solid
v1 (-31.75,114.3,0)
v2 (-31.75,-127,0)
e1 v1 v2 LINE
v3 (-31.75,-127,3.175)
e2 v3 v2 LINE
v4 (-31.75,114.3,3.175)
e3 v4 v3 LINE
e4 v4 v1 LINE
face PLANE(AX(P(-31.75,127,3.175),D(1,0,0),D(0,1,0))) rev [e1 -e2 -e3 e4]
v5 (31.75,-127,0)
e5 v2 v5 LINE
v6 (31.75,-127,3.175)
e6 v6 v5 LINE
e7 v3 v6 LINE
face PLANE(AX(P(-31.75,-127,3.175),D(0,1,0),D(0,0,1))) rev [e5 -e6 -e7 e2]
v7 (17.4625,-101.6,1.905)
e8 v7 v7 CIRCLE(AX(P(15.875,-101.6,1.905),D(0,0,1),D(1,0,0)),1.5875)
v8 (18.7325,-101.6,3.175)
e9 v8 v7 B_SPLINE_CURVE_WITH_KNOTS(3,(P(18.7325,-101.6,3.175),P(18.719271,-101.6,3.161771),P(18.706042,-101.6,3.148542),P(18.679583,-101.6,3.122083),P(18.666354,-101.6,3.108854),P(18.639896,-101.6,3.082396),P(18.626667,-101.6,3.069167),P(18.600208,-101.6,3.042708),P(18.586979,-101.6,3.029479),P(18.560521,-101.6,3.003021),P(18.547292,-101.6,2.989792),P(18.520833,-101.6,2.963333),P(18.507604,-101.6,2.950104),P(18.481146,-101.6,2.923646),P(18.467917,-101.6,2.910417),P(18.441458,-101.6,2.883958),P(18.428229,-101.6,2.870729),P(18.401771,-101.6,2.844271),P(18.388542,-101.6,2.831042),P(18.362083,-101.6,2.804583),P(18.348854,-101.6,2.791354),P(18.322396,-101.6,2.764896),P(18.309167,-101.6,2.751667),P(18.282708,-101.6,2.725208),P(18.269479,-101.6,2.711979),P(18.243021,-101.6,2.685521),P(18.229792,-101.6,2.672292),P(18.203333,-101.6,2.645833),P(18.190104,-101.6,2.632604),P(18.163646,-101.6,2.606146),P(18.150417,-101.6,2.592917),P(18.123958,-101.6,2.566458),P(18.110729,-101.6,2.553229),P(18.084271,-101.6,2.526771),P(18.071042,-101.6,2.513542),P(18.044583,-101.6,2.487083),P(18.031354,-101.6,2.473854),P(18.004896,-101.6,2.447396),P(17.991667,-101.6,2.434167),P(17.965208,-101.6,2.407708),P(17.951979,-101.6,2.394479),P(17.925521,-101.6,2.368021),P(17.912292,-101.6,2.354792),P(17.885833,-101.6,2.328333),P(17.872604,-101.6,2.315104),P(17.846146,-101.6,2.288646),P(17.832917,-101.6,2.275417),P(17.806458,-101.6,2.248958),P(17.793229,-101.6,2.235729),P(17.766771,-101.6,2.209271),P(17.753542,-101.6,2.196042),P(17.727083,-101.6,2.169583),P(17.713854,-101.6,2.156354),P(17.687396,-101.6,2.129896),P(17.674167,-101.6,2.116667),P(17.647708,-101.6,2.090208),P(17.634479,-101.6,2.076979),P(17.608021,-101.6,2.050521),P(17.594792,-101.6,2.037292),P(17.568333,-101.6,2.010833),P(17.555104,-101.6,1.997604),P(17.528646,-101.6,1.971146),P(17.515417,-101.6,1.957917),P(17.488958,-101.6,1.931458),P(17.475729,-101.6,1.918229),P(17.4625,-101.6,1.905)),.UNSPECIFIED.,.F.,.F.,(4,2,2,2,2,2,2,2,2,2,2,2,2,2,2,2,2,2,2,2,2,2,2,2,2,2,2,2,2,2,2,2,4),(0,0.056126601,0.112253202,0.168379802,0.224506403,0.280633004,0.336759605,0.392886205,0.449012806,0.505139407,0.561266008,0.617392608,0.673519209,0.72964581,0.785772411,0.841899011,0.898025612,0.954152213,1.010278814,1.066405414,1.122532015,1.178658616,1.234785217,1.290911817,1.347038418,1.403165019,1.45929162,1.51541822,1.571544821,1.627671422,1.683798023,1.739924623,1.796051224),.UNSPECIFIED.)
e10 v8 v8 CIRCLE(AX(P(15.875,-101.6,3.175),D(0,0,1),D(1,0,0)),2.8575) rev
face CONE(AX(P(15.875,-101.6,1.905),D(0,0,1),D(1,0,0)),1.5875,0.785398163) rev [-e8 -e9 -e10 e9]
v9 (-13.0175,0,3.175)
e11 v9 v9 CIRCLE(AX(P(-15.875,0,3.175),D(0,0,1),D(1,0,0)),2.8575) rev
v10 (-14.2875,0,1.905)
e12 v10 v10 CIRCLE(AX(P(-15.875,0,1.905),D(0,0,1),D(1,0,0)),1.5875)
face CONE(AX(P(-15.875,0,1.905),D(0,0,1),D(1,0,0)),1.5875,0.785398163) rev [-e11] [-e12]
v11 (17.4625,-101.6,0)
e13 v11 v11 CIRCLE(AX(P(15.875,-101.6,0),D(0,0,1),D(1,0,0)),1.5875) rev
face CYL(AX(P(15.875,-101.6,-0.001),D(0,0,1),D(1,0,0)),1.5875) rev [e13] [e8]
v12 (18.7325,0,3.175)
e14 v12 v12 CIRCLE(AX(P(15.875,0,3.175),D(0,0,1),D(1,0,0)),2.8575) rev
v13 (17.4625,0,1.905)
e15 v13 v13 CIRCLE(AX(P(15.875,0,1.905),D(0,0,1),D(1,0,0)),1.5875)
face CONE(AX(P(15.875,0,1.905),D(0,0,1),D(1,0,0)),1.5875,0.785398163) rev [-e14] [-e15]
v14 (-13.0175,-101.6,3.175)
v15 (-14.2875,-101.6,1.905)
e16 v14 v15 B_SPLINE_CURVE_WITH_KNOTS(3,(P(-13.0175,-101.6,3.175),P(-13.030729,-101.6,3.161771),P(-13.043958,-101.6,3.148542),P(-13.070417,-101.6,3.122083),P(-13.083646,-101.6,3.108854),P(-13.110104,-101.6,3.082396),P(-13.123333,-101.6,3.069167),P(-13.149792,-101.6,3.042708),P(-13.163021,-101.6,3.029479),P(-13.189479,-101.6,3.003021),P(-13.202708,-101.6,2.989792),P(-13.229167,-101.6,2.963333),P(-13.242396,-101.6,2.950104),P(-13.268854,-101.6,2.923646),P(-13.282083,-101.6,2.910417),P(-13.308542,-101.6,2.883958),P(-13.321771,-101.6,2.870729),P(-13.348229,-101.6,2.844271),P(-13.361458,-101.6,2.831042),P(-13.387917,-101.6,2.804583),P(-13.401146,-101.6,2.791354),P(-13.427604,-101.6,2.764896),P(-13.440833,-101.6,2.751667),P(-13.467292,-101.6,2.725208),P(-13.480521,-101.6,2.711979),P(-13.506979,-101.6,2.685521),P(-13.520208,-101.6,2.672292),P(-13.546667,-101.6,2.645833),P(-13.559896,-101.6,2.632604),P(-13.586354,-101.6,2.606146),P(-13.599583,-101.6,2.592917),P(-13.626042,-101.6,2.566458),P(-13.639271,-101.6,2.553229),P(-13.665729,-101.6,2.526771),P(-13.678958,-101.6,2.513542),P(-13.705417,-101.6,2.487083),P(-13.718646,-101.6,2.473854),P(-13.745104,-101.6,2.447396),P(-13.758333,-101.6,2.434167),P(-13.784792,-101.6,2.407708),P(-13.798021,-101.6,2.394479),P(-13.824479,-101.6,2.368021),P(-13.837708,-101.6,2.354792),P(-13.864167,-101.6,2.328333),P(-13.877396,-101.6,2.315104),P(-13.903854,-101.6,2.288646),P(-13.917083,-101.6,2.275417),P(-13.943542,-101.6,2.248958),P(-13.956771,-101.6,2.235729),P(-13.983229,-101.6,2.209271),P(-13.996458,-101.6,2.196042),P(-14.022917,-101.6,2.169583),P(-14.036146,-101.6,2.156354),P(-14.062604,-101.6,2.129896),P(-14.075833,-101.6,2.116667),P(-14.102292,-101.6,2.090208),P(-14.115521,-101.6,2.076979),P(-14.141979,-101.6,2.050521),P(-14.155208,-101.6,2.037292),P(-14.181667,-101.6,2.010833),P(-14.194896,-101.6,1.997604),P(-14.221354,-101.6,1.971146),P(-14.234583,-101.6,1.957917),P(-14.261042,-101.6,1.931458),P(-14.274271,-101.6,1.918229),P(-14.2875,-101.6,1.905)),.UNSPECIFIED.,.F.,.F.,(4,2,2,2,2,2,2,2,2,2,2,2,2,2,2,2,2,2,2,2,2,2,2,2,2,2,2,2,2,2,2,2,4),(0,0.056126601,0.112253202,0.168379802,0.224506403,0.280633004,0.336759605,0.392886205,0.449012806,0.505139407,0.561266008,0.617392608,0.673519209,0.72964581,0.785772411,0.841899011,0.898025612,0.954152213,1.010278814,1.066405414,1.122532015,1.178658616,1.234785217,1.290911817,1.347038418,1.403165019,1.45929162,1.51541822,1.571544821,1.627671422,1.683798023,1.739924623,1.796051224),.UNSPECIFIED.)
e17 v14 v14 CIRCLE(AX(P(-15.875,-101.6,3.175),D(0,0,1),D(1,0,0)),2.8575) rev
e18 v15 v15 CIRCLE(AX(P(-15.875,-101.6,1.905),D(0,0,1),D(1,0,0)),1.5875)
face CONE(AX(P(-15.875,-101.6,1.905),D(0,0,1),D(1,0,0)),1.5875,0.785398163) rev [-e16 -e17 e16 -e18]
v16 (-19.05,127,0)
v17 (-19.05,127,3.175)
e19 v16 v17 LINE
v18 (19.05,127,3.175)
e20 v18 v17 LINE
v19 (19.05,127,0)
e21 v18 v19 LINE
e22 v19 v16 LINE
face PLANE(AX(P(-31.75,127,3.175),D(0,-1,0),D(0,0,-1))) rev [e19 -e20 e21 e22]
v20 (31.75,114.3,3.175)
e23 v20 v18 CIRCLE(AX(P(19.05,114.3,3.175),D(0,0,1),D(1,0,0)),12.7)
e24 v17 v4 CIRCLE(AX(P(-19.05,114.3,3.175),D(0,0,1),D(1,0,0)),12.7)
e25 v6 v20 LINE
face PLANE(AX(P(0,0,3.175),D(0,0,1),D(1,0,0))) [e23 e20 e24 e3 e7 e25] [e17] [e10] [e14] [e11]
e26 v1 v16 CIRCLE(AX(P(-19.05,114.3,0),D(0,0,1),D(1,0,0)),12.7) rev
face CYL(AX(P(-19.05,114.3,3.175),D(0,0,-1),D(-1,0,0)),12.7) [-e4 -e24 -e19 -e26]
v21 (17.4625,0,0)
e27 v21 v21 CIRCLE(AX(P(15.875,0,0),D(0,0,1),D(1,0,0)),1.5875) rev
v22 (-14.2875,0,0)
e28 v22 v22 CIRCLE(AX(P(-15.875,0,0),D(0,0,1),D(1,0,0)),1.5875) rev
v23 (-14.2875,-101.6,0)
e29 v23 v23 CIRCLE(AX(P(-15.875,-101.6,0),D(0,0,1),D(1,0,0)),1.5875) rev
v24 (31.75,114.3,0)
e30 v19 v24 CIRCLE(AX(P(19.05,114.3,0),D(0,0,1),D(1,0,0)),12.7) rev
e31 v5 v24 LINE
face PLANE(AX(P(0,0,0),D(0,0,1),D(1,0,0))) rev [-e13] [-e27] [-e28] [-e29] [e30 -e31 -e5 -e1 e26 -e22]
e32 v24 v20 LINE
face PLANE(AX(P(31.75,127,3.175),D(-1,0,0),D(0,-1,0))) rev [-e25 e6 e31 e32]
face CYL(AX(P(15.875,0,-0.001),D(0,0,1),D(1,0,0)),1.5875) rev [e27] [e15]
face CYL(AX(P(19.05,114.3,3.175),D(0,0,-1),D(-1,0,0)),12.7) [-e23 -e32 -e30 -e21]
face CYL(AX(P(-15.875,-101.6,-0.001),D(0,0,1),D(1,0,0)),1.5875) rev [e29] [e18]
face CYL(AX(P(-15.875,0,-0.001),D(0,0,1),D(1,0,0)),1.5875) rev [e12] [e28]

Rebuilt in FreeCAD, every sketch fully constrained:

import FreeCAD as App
import Part
import Sketcher

V = App.Vector
Q = App.Units.Quantity


def edges_at(feature, points):
    """Names of the edges that pass closest to the given points."""
    edges = feature.Shape.Edges
    near = lambda p: min(range(len(edges)), key=lambda i: edges[i].distToShape(Part.Vertex(*p))[0])
    return sorted({f"Edge{near(p) + 1}" for p in points})


def add_polygon(sketch, points):
    """Adds a closed chain of lines whose ends are joined by coincident constraints."""
    first, n = sketch.GeometryCount, len(points)
    for a, b in zip(points, points[1:] + points[:1]):
        sketch.addGeometry(Part.LineSegment(App.Vector(*a, 0), App.Vector(*b, 0)), False)
    for i in range(n):
        sketch.addConstraint(Sketcher.Constraint("Coincident", first + i, 2, first + (i + 1) % n, 1))

doc = App.newDocument("Part")
body = doc.addObject("PartDesign::Body", "Body")

sketch1 = body.newObject("Sketcher::SketchObject", "Sketch")
sketch1.AttachmentSupport = (doc.getObject("XY_Plane"), [""])
sketch1.MapMode = "FlatFace"
add_polygon(sketch1, [(-32, 127), (-32, -127), (32, -127), (32, 127)])
sketch1.addConstraint(Sketcher.Constraint("Vertical", 0))
sketch1.addConstraint(Sketcher.Constraint("Horizontal", 1))
sketch1.addConstraint(Sketcher.Constraint("Vertical", 2))
sketch1.addConstraint(Sketcher.Constraint("Horizontal", 3))
sketch1.addConstraint(Sketcher.Constraint("Symmetric", 0, 2, 2, 2, -1, 1))
sketch1.addConstraint(Sketcher.Constraint("DistanceY", 0, 2, 0, 1, Q("10 in")))
sketch1.addConstraint(Sketcher.Constraint("DistanceX", 1, 1, 1, 2, Q("2.5 in")))
pad1 = body.newObject("PartDesign::Pad", "Pad")
pad1.Profile = sketch1
pad1.Length = Q("0.125 in")

sketch2 = body.newObject("Sketcher::SketchObject", "Sketch001")
sketch2.AttachmentSupport = (doc.getObject("XY_Plane"), [""])
sketch2.MapMode = "FlatFace"
sketch2.AttachmentOffset = App.Placement(V(0, 0, 0.125 * 25.4), App.Rotation())
sketch2.addGeometry(Part.Circle(V(15.9, -101.6, 0), V(0, 0, 1), 1.6), False)
sketch2.addConstraint(Sketcher.Constraint("Diameter", 0, Q("0.125 in")))
sketch2.addConstraint(Sketcher.Constraint("DistanceY", 0, 3, -1, 1, Q("4 in")))
sketch2.addConstraint(Sketcher.Constraint("DistanceX", -1, 1, 0, 3, Q("0.625 in")))
pocket1 = body.newObject("PartDesign::Pocket", "Pocket")
pocket1.Profile = sketch2
pocket1.Type = "UpToFirst"

sketch3 = body.newObject("Sketcher::SketchObject", "Sketch002")
sketch3.AttachmentSupport = (doc.getObject("XY_Plane"), [""])
sketch3.MapMode = "FlatFace"
sketch3.AttachmentOffset = App.Placement(V(0, 0, 0.125 * 25.4), App.Rotation())
sketch3.addGeometry(Part.Circle(V(-15.9, -101.6, 0), V(0, 0, 1), 1.6), False)
sketch3.addConstraint(Sketcher.Constraint("Diameter", 0, Q("0.125 in")))
sketch3.addConstraint(Sketcher.Constraint("DistanceY", 0, 3, -1, 1, Q("4 in")))
sketch3.addConstraint(Sketcher.Constraint("DistanceX", 0, 3, -1, 1, Q("0.625 in")))
pocket2 = body.newObject("PartDesign::Pocket", "Pocket001")
pocket2.Profile = sketch3
pocket2.Type = "UpToFirst"

sketch4 = body.newObject("Sketcher::SketchObject", "Sketch003")
sketch4.AttachmentSupport = (doc.getObject("XY_Plane"), [""])
sketch4.MapMode = "FlatFace"
sketch4.AttachmentOffset = App.Placement(V(0, 0, 0.125 * 25.4), App.Rotation())
sketch4.addGeometry(Part.Circle(V(15.9, 0, 0), V(0, 0, 1), 1.6), False)
sketch4.addConstraint(Sketcher.Constraint("PointOnObject", 0, 3, -1))
sketch4.addConstraint(Sketcher.Constraint("Diameter", 0, Q("0.125 in")))
sketch4.addConstraint(Sketcher.Constraint("DistanceX", -1, 1, 0, 3, Q("0.625 in")))
pocket3 = body.newObject("PartDesign::Pocket", "Pocket002")
pocket3.Profile = sketch4
pocket3.Type = "UpToFirst"

sketch5 = body.newObject("Sketcher::SketchObject", "Sketch004")
sketch5.AttachmentSupport = (doc.getObject("XY_Plane"), [""])
sketch5.MapMode = "FlatFace"
sketch5.AttachmentOffset = App.Placement(V(0, 0, 0.125 * 25.4), App.Rotation())
sketch5.addGeometry(Part.Circle(V(-15.9, 0, 0), V(0, 0, 1), 1.6), False)
sketch5.addConstraint(Sketcher.Constraint("PointOnObject", 0, 3, -1))
sketch5.addConstraint(Sketcher.Constraint("Diameter", 0, Q("0.125 in")))
sketch5.addConstraint(Sketcher.Constraint("DistanceX", 0, 3, -1, 1, Q("0.625 in")))
pocket4 = body.newObject("PartDesign::Pocket", "Pocket003")
pocket4.Profile = sketch5
pocket4.Type = "UpToFirst"
doc.recompute()

chamfer = body.newObject("PartDesign::Chamfer", "Chamfer")
chamfer.Base = (pocket4, edges_at(pocket4, [
    (14.287, -101.6, 3.175),
    (-17.462, -101.6, 3.175),
    (14.287, 0, 3.175),
    (-17.462, 0, 3.175),
]))
chamfer.Size = Q("0.05 in")
doc.recompute()

fillet = body.newObject("PartDesign::Fillet", "Fillet")
fillet.Base = (chamfer, edges_at(chamfer, [(-31.75, 127, 1.587), (31.75, 127, 1.587)]))
fillet.Radius = Q("0.5 in")

doc.recompute()
